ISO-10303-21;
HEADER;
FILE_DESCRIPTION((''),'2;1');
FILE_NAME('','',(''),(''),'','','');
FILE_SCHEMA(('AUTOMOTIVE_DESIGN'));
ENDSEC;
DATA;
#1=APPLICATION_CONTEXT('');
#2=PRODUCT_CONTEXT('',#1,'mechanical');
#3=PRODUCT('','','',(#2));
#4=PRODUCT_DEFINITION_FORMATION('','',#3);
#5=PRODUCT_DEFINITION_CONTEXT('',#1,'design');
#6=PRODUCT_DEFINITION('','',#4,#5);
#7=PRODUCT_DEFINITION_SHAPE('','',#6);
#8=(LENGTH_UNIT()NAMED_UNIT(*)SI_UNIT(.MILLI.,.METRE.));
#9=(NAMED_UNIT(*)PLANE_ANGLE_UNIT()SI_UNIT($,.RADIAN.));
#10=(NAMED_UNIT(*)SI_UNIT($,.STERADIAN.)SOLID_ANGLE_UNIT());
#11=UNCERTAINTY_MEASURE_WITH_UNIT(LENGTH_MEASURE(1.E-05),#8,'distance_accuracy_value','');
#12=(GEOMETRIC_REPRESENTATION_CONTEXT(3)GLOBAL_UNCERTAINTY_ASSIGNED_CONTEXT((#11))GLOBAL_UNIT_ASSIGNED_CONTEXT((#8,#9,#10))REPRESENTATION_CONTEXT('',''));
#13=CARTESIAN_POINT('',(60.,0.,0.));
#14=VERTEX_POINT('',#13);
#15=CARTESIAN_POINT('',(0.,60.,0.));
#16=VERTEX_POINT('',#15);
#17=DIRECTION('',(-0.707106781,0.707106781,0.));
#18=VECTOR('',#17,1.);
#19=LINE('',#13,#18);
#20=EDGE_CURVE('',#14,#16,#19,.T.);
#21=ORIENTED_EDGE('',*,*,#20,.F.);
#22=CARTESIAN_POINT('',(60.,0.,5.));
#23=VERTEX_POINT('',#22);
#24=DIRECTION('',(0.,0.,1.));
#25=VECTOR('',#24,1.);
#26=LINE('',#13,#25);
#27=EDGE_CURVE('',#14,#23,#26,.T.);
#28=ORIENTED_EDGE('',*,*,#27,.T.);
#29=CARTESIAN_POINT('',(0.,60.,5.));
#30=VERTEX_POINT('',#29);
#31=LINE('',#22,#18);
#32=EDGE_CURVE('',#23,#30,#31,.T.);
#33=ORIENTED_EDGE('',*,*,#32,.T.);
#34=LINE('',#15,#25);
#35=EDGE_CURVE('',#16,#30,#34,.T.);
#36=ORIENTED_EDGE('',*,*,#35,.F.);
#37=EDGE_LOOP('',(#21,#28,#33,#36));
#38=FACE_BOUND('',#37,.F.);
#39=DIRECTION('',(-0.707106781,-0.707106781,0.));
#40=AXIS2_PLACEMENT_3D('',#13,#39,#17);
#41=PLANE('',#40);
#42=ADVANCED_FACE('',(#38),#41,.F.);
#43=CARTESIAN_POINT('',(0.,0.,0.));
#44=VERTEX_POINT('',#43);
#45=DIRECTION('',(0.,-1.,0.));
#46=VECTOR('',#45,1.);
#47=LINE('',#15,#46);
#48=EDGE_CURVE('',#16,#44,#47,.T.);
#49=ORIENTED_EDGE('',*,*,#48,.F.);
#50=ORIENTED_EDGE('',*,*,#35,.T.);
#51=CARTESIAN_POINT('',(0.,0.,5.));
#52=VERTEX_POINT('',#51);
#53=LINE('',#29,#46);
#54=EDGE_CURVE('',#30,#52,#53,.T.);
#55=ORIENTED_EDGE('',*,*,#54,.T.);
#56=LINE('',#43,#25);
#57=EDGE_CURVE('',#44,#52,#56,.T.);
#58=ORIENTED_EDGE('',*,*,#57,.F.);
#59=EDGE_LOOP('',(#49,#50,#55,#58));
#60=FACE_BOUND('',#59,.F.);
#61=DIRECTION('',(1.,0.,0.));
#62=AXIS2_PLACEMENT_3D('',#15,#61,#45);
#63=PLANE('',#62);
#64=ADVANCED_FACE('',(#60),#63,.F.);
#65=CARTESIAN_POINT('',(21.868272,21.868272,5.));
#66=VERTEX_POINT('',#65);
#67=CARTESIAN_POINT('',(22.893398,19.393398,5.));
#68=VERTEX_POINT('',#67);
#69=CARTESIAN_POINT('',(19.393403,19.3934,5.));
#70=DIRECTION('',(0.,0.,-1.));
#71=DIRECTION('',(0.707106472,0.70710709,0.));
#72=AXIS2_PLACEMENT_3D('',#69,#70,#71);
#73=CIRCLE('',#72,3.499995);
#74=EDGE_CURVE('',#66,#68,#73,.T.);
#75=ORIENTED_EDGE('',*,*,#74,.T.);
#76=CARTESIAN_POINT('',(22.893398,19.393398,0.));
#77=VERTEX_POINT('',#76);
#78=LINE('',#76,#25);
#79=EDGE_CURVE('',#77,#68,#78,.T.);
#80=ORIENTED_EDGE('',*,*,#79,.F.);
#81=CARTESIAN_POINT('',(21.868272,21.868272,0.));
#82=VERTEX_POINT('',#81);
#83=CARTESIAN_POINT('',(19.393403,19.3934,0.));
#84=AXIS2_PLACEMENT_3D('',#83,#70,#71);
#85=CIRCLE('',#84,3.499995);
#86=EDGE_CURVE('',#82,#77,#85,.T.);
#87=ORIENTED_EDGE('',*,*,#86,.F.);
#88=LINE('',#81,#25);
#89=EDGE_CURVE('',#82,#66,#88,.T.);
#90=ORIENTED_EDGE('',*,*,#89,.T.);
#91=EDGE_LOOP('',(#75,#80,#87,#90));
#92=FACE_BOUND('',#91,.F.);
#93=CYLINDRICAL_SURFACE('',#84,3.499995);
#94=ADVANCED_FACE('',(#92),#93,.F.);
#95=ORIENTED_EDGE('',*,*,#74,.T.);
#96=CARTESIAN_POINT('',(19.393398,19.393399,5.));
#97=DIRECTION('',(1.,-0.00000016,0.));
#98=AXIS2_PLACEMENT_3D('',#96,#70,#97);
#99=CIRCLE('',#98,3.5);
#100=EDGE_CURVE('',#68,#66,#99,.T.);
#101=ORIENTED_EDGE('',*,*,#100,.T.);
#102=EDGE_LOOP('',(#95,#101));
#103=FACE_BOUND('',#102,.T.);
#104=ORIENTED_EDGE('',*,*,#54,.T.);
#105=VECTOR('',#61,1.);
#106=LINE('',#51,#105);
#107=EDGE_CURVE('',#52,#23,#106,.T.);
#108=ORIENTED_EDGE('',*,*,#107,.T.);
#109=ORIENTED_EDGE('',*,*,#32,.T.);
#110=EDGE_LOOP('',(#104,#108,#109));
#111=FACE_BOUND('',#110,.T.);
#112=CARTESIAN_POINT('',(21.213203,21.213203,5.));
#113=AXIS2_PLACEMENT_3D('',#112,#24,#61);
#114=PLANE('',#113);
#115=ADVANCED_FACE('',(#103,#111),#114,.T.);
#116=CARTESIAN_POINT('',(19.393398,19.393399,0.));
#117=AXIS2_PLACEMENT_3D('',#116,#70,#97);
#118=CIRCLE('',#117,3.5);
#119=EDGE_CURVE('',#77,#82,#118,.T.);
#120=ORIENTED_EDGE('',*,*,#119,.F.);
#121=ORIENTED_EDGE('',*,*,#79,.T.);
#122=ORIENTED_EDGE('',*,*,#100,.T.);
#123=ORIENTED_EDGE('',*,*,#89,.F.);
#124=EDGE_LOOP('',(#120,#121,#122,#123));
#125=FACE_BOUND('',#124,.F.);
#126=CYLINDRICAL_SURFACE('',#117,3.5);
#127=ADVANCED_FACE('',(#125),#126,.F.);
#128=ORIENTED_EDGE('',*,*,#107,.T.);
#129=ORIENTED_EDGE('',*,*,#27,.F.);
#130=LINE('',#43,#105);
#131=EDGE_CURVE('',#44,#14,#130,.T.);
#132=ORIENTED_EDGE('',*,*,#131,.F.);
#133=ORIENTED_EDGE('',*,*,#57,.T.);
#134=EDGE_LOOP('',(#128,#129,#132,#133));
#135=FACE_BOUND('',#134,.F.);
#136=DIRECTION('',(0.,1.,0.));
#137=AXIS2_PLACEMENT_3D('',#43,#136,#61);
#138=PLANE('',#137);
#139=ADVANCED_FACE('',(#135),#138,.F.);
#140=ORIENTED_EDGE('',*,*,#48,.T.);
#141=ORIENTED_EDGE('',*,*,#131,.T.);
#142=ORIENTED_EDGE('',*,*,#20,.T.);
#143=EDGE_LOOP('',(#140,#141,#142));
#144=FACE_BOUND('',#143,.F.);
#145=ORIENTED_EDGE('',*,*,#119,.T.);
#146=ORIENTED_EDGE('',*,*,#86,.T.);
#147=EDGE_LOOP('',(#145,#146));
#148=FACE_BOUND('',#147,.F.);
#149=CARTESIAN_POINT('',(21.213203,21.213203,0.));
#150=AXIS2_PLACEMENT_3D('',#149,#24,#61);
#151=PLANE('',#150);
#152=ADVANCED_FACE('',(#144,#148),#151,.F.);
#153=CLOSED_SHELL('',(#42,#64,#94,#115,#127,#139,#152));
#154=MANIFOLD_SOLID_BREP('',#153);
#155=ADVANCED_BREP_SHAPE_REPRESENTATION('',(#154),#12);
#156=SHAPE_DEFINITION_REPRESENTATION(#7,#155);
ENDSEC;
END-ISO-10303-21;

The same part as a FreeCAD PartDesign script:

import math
import FreeCAD as App
import Part
import Sketcher

V = App.Vector


def add_polygon(sketch, points):
    """Adds a closed chain of lines whose ends are joined by coincident constraints."""
    first, n = sketch.GeometryCount, len(points)
    for a, b in zip(points, points[1:] + points[:1]):
        sketch.addGeometry(Part.LineSegment(App.Vector(*a, 0), App.Vector(*b, 0)), False)
    for i in range(n):
        sketch.addConstraint(Sketcher.Constraint("Coincident", first + i, 2, first + (i + 1) % n, 1))

doc = App.newDocument("Part")
body = doc.addObject("PartDesign::Body", "Body")

# Sketch on XY plane
sketch1 = body.newObject("Sketcher::SketchObject", "Sketch")
sketch1.AttachmentSupport = (doc.getObject("XY_Plane"), [""])
sketch1.MapMode = "FlatFace"
add_polygon(sketch1, [(0, 60), (0, 0), (60, 0)])  # lines 0-2
sketch1.addGeometry(Part.ArcOfCircle(Part.Circle(V(19.4, 19.4, 0), V(0, 0, 1), 3.5), math.radians(0), math.radians(45)), False)  # 3
sketch1.addGeometry(Part.ArcOfCircle(Part.Circle(V(19.4, 19.4, 0), V(0, 0, 1), 3.5), math.radians(45), math.radians(360)), False)  # 4
sketch1.addConstraint([
    Sketcher.Constraint("Tangent", 3, 1, 4, 2),
    Sketcher.Constraint("Coincident", 4, 1, 3, 2),
    Sketcher.Constraint("Vertical", 0),
    Sketcher.Constraint("Horizontal", 1),
    Sketcher.Constraint("Coincident", 0, 2, -1, 1),
    Sketcher.Constraint("Horizontal", 4, 3, 3, 1),
    Sketcher.Constraint("Equal", 1, 0),
    Sketcher.Constraint("Radius", 4, 3.5),
    Sketcher.Constraint("DistanceX", 1, 1, 1, 2, 60.0),
    Sketcher.Constraint("DistanceY", -1, 1, 3, 3, 19.3934),
    Sketcher.Constraint("DistanceX", -1, 1, 4, 3, 19.393398),
    Sketcher.Constraint("DistanceX", -1, 1, 4, 1, 21.868272),
])
pad1 = body.newObject("PartDesign::Pad", "Pad")
pad1.Profile = sketch1
pad1.Length = 5

doc.recompute()
